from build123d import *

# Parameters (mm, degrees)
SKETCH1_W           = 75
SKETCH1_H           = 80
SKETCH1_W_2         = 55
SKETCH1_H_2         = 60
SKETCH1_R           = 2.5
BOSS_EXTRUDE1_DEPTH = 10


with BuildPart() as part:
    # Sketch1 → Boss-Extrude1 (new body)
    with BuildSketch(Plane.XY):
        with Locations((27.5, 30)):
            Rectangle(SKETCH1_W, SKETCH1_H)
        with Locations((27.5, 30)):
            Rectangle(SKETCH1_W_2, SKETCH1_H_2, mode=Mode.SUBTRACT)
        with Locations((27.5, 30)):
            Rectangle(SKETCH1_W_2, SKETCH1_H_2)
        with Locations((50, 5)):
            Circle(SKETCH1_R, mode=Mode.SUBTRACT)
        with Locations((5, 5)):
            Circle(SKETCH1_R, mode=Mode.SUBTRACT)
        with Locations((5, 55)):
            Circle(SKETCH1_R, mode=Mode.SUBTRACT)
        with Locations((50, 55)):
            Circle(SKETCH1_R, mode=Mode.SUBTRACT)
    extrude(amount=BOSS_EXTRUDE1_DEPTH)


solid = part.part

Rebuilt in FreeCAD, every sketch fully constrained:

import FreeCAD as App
import Part
import Sketcher

V = App.Vector


def add_polygon(sketch, points):
    """Adds a closed chain of lines whose ends are joined by coincident constraints."""
    first, n = sketch.GeometryCount, len(points)
    for a, b in zip(points, points[1:] + points[:1]):
        sketch.addGeometry(Part.LineSegment(App.Vector(*a, 0), App.Vector(*b, 0)), False)
    for i in range(n):
        sketch.addConstraint(Sketcher.Constraint("Coincident", first + i, 2, first + (i + 1) % n, 1))

doc = App.newDocument("Part")
body = doc.addObject("PartDesign::Body", "Body")

# Sketch on XY plane
sketch1 = body.newObject("Sketcher::SketchObject", "Sketch")
sketch1.AttachmentSupport = (doc.getObject("XY_Plane"), [""])
sketch1.MapMode = "FlatFace"
add_polygon(sketch1, [(-10, 70), (-10, -10), (65, -10), (65, 70)])  # lines 0-3
sketch1.addGeometry(Part.Circle(V(5, 5, 0), V(0, 0, 1), 2.5), False)  # 4
sketch1.addGeometry(Part.Circle(V(50, 5, 0), V(0, 0, 1), 2.5), False)  # 5
sketch1.addGeometry(Part.Circle(V(5, 55, 0), V(0, 0, 1), 2.5), False)  # 6
sketch1.addGeometry(Part.Circle(V(50, 55, 0), V(0, 0, 1), 2.5), False)  # 7
sketch1.addConstraint([
    Sketcher.Constraint("Vertical", 0),
    Sketcher.Constraint("Horizontal", 1),
    Sketcher.Constraint("Vertical", 2),
    Sketcher.Constraint("Horizontal", 3),
    Sketcher.Constraint("Equal", 4, 5),
    Sketcher.Constraint("Equal", 5, 6),
    Sketcher.Constraint("Equal", 6, 7),
    Sketcher.Constraint("Horizontal", 4, 3, 5, 3),
    Sketcher.Constraint("Horizontal", 6, 3, 7, 3),
    Sketcher.Constraint("Vertical", 4, 3, 6, 3),
    Sketcher.Constraint("Vertical", 5, 3, 7, 3),
    Sketcher.Constraint("Diameter", 4, 5.0),
    Sketcher.Constraint("DistanceX", 1, 1, 1, 2, 75.0),
    Sketcher.Constraint("DistanceY", 0, 2, 0, 1, 80.0),
    Sketcher.Constraint("DistanceX", -1, 1, 4, 3, 5.0),
    Sketcher.Constraint("DistanceY", -1, 1, 4, 3, 5.0),
    Sketcher.Constraint("DistanceX", -1, 1, 5, 3, 50.0),
    Sketcher.Constraint("DistanceY", -1, 1, 6, 3, 55.0),
    Sketcher.Constraint("DistanceX", 0, 2, -1, 1, 10.0),
    Sketcher.Constraint("DistanceY", 0, 2, -1, 1, 10.0),
])
pad1 = body.newObject("PartDesign::Pad", "Pad")
pad1.Profile = sketch1
pad1.Length = 10

doc.recompute()
